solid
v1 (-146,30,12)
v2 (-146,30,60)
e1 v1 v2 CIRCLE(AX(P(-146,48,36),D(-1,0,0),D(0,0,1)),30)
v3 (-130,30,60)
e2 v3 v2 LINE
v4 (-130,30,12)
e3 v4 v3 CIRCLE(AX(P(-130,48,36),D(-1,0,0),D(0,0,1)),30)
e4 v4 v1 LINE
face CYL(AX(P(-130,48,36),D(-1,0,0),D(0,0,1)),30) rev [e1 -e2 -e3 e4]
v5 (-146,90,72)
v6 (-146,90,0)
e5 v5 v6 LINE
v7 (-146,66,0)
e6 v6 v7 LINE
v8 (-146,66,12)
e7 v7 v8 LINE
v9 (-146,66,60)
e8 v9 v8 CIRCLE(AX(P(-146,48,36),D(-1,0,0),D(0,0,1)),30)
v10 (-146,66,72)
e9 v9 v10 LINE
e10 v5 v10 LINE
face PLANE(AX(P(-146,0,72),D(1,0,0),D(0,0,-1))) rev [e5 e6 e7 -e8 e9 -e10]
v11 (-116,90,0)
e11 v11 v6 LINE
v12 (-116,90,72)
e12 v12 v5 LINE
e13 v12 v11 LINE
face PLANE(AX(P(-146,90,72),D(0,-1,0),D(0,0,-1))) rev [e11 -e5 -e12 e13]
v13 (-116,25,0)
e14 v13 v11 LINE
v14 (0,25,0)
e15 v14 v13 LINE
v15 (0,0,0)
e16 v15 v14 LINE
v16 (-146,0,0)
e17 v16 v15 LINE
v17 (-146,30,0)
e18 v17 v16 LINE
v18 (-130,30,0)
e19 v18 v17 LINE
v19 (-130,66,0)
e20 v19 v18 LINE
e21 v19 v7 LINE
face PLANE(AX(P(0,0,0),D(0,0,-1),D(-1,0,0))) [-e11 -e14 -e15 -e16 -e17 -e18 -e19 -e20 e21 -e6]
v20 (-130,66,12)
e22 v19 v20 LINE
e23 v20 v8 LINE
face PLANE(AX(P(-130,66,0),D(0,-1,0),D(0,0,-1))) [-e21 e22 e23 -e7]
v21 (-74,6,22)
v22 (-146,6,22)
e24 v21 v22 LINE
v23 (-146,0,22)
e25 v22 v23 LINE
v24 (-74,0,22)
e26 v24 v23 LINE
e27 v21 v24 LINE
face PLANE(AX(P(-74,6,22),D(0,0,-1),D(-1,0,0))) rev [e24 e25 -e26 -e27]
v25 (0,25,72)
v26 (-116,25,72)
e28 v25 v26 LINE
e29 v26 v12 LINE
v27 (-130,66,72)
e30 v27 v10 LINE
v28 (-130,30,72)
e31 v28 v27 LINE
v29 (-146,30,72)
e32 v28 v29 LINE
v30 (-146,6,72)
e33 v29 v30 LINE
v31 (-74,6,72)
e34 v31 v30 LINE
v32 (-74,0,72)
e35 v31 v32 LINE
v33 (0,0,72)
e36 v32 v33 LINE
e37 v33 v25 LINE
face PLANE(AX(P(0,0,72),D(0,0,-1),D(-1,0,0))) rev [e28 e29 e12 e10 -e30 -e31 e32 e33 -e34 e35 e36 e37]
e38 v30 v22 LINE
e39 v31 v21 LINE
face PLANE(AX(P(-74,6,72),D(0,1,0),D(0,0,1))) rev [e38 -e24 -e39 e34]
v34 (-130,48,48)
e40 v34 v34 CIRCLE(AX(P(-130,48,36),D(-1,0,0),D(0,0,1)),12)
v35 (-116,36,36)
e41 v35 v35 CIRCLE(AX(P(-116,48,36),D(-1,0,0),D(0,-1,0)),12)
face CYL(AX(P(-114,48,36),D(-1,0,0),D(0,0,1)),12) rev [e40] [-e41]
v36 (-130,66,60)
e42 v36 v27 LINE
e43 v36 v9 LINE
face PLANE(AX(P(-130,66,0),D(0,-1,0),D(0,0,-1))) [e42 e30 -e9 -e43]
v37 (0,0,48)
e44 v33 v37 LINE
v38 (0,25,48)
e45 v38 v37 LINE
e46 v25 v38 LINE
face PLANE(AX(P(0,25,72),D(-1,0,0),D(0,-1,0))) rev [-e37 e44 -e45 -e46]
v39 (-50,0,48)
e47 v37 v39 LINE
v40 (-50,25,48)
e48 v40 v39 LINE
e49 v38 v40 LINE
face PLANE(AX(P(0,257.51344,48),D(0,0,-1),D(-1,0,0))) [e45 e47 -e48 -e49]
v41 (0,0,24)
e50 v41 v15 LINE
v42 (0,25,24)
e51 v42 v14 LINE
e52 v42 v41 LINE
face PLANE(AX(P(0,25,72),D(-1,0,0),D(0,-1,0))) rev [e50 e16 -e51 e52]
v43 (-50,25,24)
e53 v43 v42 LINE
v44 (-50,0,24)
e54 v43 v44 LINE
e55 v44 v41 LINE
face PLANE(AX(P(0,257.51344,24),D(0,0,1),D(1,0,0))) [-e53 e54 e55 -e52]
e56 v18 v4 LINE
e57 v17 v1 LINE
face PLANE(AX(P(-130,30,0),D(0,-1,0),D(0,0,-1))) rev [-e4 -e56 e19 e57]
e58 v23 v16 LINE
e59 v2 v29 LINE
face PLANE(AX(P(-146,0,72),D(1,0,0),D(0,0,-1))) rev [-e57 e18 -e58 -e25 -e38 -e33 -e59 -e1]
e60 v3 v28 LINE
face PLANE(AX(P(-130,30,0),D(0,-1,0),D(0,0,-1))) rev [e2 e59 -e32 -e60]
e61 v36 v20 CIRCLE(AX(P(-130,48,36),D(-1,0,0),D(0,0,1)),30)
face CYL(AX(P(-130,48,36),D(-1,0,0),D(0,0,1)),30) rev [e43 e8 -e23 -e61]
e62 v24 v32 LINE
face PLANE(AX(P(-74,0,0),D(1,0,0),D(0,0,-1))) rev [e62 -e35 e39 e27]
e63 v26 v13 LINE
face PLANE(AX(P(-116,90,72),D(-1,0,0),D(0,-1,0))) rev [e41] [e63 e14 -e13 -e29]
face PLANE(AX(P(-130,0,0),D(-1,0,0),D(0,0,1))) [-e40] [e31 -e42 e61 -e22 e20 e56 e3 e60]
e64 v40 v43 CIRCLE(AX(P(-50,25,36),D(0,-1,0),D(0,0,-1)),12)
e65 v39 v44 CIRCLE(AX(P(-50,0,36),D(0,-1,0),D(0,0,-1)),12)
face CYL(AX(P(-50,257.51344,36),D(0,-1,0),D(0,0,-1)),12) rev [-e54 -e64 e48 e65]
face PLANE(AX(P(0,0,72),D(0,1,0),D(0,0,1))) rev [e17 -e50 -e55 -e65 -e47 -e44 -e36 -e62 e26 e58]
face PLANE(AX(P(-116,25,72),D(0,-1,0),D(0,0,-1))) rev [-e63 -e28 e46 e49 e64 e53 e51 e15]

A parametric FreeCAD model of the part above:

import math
import FreeCAD as App
import Part
import Sketcher

V = App.Vector
Q = App.Units.Quantity

doc = App.newDocument("Part")
body = doc.addObject("PartDesign::Body", "Body")

sketch1 = body.newObject("Sketcher::SketchObject", "Sketch")
sketch1.AttachmentSupport = (doc.getObject("XY_Plane"), [""])
sketch1.MapMode = "FlatFace"
sketch1.addGeometry(Part.LineSegment(V(-146, 0, 0), V(0, 0, 0)), False)
sketch1.addGeometry(Part.LineSegment(V(0, 0, 0), V(0, 25, 0)), False)
sketch1.addGeometry(Part.LineSegment(V(0, 25, 0), V(-116, 25, 0)), False)
sketch1.addGeometry(Part.LineSegment(V(-116, 25, 0), V(-116, 90, 0)), False)
sketch1.addGeometry(Part.LineSegment(V(-116, 90, 0), V(-146, 90, 0)), False)
sketch1.addGeometry(Part.LineSegment(V(-146, 90, 0), V(-146, 0, 0)), False)
sketch1.addConstraint(Sketcher.Constraint("Coincident", 0, 2, 1, 1))
sketch1.addConstraint(Sketcher.Constraint("Coincident", 1, 2, 2, 1))
sketch1.addConstraint(Sketcher.Constraint("Coincident", 2, 2, 3, 1))
sketch1.addConstraint(Sketcher.Constraint("Coincident", 3, 2, 4, 1))
sketch1.addConstraint(Sketcher.Constraint("Coincident", 4, 2, 5, 1))
sketch1.addConstraint(Sketcher.Constraint("Coincident", 5, 2, 0, 1))
sketch1.addConstraint(Sketcher.Constraint("Horizontal", 0))
sketch1.addConstraint(Sketcher.Constraint("Vertical", 1))
sketch1.addConstraint(Sketcher.Constraint("Horizontal", 2))
sketch1.addConstraint(Sketcher.Constraint("Vertical", 3))
sketch1.addConstraint(Sketcher.Constraint("Horizontal", 4))
sketch1.addConstraint(Sketcher.Constraint("Vertical", 5))
sketch1.addConstraint(Sketcher.Constraint("Coincident", 0, 2, -1, 1))
sketch1.addConstraint(Sketcher.Constraint("DistanceX", 0, 1, 0, 2, Q("146 mm")))
sketch1.addConstraint(Sketcher.Constraint("DistanceX", 2, 2, 2, 1, Q("116 mm")))
sketch1.addConstraint(Sketcher.Constraint("DistanceY", 1, 1, 1, 2, Q("25 mm")))
sketch1.addConstraint(Sketcher.Constraint("DistanceY", 3, 1, 3, 2, Q("65 mm")))
pad1 = body.newObject("PartDesign::Pad", "Pad")
pad1.Profile = sketch1
pad1.Length = 72

sketch2 = body.newObject("Sketcher::SketchObject", "Sketch001")
sketch2.AttachmentSupport = (doc.getObject("XZ_Plane"), [""])
sketch2.MapMode = "FlatFace"
sketch2.AttachmentOffset = App.Placement(V(0, 0, -25), App.Rotation())
sketch2.addGeometry(Part.LineSegment(V(-50, 48, 0), V(0, 48, 0)), False)
sketch2.addGeometry(Part.LineSegment(V(0, 48, 0), V(0, 24, 0)), False)
sketch2.addGeometry(Part.LineSegment(V(0, 24, 0), V(-50, 24, 0)), False)
sketch2.addGeometry(Part.ArcOfCircle(Part.Circle(V(-50, 36, 0), V(0, 0, 1), 12), math.radians(90), math.radians(270)), False)
sketch2.addConstraint(Sketcher.Constraint("Coincident", 0, 2, 1, 1))
sketch2.addConstraint(Sketcher.Constraint("Coincident", 1, 2, 2, 1))
sketch2.addConstraint(Sketcher.Constraint("Tangent", 2, 2, 3, 2))
sketch2.addConstraint(Sketcher.Constraint("Tangent", 3, 1, 0, 1))
sketch2.addConstraint(Sketcher.Constraint("Horizontal", 0))
sketch2.addConstraint(Sketcher.Constraint("Vertical", 1))
sketch2.addConstraint(Sketcher.Constraint("Horizontal", 2))
sketch2.addConstraint(Sketcher.Constraint("PointOnObject", 0, 2, -2))
sketch2.addConstraint(Sketcher.Constraint("Radius", 3, Q("12 mm")))
sketch2.addConstraint(Sketcher.Constraint("DistanceX", 0, 1, 0, 2, Q("50 mm")))
sketch2.addConstraint(Sketcher.Constraint("DistanceY", -1, 1, 3, 3, Q("36 mm")))
pocket1 = body.newObject("PartDesign::Pocket", "Pocket")
pocket1.Profile = sketch2
pocket1.Type = "ThroughAll"
pocket1.Midplane = True

sketch3 = body.newObject("Sketcher::SketchObject", "Sketch002")
sketch3.AttachmentSupport = (doc.getObject("YZ_Plane"), [""])
sketch3.MapMode = "FlatFace"
sketch3.AttachmentOffset = App.Placement(V(0, 0, -146), App.Rotation())
sketch3.addGeometry(Part.LineSegment(V(6, 22, 0), V(0, 22, 0)), False)
sketch3.addGeometry(Part.LineSegment(V(0, 22, 0), V(0, 72, 0)), False)
sketch3.addGeometry(Part.LineSegment(V(0, 72, 0), V(6, 72, 0)), False)
sketch3.addGeometry(Part.LineSegment(V(6, 72, 0), V(6, 22, 0)), False)
sketch3.addConstraint(Sketcher.Constraint("Coincident", 0, 2, 1, 1))
sketch3.addConstraint(Sketcher.Constraint("Coincident", 1, 2, 2, 1))
sketch3.addConstraint(Sketcher.Constraint("Coincident", 2, 2, 3, 1))
sketch3.addConstraint(Sketcher.Constraint("Coincident", 3, 2, 0, 1))
sketch3.addConstraint(Sketcher.Constraint("Horizontal", 0))
sketch3.addConstraint(Sketcher.Constraint("Vertical", 1))
sketch3.addConstraint(Sketcher.Constraint("Horizontal", 2))
sketch3.addConstraint(Sketcher.Constraint("Vertical", 3))
sketch3.addConstraint(Sketcher.Constraint("PointOnObject", 0, 2, -2))
sketch3.addConstraint(Sketcher.Constraint("DistanceX", 0, 2, 0, 1, Q("6 mm")))
sketch3.addConstraint(Sketcher.Constraint("DistanceY", 1, 1, 1, 2, Q("50 mm")))
sketch3.addConstraint(Sketcher.Constraint("DistanceY", -1, 1, 0, 2, Q("22 mm")))
pocket2 = body.newObject("PartDesign::Pocket", "Pocket001")
pocket2.Profile = sketch3
pocket2.Length = 72
pocket2.Reversed = True

sketch4 = body.newObject("Sketcher::SketchObject", "Sketch003")
sketch4.AttachmentSupport = (doc.getObject("YZ_Plane"), [""])
sketch4.MapMode = "FlatFace"
sketch4.AttachmentOffset = App.Placement(V(0, 0, -146), App.Rotation())
sketch4.addGeometry(Part.LineSegment(V(66, 12, 0), V(66, 0, 0)), False)
sketch4.addGeometry(Part.LineSegment(V(66, 0, 0), V(30, 0, 0)), False)
sketch4.addGeometry(Part.LineSegment(V(30, 0, 0), V(30, 12, 0)), False)
sketch4.addGeometry(Part.ArcOfCircle(Part.Circle(V(48, 36, 0), V(0, 0, 1), 30), math.radians(127), math.radians(233)), False)
sketch4.addGeometry(Part.LineSegment(V(30, 60, 0), V(30, 72, 0)), False)
sketch4.addGeometry(Part.LineSegment(V(30, 72, 0), V(66, 72, 0)), False)
sketch4.addGeometry(Part.LineSegment(V(66, 72, 0), V(66, 60, 0)), False)
sketch4.addGeometry(Part.ArcOfCircle(Part.Circle(V(48, 36, 0), V(0, 0, 1), 30), math.radians(-53), math.radians(53)), False)
sketch4.addConstraint(Sketcher.Constraint("Coincident", 0, 2, 1, 1))
sketch4.addConstraint(Sketcher.Constraint("Coincident", 1, 2, 2, 1))
sketch4.addConstraint(Sketcher.Constraint("Coincident", 2, 2, 3, 2))
sketch4.addConstraint(Sketcher.Constraint("Coincident", 3, 1, 4, 1))
sketch4.addConstraint(Sketcher.Constraint("Coincident", 4, 2, 5, 1))
sketch4.addConstraint(Sketcher.Constraint("Coincident", 5, 2, 6, 1))
sketch4.addConstraint(Sketcher.Constraint("Coincident", 6, 2, 7, 2))
sketch4.addConstraint(Sketcher.Constraint("Coincident", 7, 1, 0, 1))
sketch4.addConstraint(Sketcher.Constraint("Vertical", 0))
sketch4.addConstraint(Sketcher.Constraint("Horizontal", 1))
sketch4.addConstraint(Sketcher.Constraint("Vertical", 2))
sketch4.addConstraint(Sketcher.Constraint("Vertical", 4))
sketch4.addConstraint(Sketcher.Constraint("Horizontal", 5))
sketch4.addConstraint(Sketcher.Constraint("Vertical", 6))
sketch4.addConstraint(Sketcher.Constraint("Coincident", 7, 3, 3, 3))
sketch4.addConstraint(Sketcher.Constraint("Equal", 3, 7))
sketch4.addConstraint(Sketcher.Constraint("PointOnObject", 0, 2, -1))
sketch4.addConstraint(Sketcher.Constraint("Horizontal", 3, 1, 6, 2))
sketch4.addConstraint(Sketcher.Constraint("Horizontal", 2, 2, 7, 1))
sketch4.addConstraint(Sketcher.Constraint("Vertical", 2, 2, 3, 1))
sketch4.addConstraint(Sketcher.Constraint("Equal", 2, 4))
sketch4.addConstraint(Sketcher.Constraint("Radius", 3, Q("30 mm")))
sketch4.addConstraint(Sketcher.Constraint("DistanceX", 1, 2, 1, 1, Q("36 mm")))
sketch4.addConstraint(Sketcher.Constraint("DistanceY", 0, 2, 0, 1, Q("12 mm")))
sketch4.addConstraint(Sketcher.Constraint("DistanceX", -1, 1, 3, 3, Q("48 mm")))
pocket3 = body.newObject("PartDesign::Pocket", "Pocket002")
pocket3.Profile = sketch4
pocket3.Length = 16
pocket3.Reversed = True

sketch5 = body.newObject("Sketcher::SketchObject", "Sketch004")
sketch5.AttachmentSupport = (doc.getObject("YZ_Plane"), [""])
sketch5.MapMode = "FlatFace"
sketch5.AttachmentOffset = App.Placement(V(0, 0, -130), App.Rotation())
sketch5.addGeometry(Part.Circle(V(48, 36, 0), V(0, 0, 1), 12), False)
sketch5.addConstraint(Sketcher.Constraint("Diameter", 0, Q("24 mm")))
sketch5.addConstraint(Sketcher.Constraint("DistanceX", -1, 1, 0, 3, Q("48 mm")))
sketch5.addConstraint(Sketcher.Constraint("DistanceY", -1, 1, 0, 3, Q("36 mm")))
pocket4 = body.newObject("PartDesign::Pocket", "Pocket003")
pocket4.Profile = sketch5
pocket4.Length = 16
pocket4.Reversed = True

doc.recompute()
